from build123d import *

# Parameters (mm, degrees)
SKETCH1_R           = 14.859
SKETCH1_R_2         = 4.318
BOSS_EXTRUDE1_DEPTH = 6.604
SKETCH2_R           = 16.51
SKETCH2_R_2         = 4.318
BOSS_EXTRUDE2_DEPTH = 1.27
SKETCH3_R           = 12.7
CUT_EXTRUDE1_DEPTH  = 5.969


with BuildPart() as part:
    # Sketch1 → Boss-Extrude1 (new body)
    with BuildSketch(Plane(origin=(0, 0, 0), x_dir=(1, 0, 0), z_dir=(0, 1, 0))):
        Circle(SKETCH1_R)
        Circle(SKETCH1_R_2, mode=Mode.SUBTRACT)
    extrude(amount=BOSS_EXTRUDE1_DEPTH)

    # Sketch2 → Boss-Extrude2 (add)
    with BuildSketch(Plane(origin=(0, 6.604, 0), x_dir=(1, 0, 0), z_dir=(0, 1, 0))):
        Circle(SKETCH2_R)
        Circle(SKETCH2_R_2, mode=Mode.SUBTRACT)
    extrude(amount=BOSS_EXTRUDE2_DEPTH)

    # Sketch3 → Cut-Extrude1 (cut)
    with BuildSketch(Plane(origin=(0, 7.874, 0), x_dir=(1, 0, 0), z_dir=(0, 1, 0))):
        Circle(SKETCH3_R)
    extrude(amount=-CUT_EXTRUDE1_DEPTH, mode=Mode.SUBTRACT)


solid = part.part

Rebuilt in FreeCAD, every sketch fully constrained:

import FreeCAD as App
import Part
import Sketcher

V = App.Vector
Q = App.Units.Quantity

doc = App.newDocument("Part")
params = doc.addObject("Spreadsheet::Sheet", "Params")
for row, (alias, value) in enumerate([
    ("sketch1_diameter", "1.17 in"),
    ("sketch1_diameter2", "0.34 in"),
    ("pad1_length", "0.26 in"),
    ("sketch2_diameter", "1.3 in"),
    ("sketch2_diameter2", "0.34 in"),
    ("pad2_length", "0.05 in"),
    ("sketch3_diameter", "1 in"),
    ("pocket1_length", "0.235 in"),
], start=1):
    params.set(f"A{row}", alias)
    params.set(f"B{row}", "=" + value)
    params.setAlias(f"B{row}", alias)

body = doc.addObject("PartDesign::Body", "Body")

# Sketch on XZ plane
sketch1 = doc.addObject("Sketcher::SketchObject", "Sketch")
body.addObject(sketch1)
sketch1.AttachmentSupport = (doc.XZ_Plane, [""])
sketch1.MapMode = "FlatFace"
sketch1.addGeometry([
    Part.Circle(V(0, 0, 0), V(0, 0, 1), 14.859),
    Part.Circle(V(0, 0, 0), V(0, 0, 1), 4.318),
], False)
sketch1.addConstraint([
    Sketcher.Constraint("Coincident", 0, 3, -1, 1),
    Sketcher.Constraint("Coincident", 1, 3, -1, 1),
    Sketcher.Constraint("Diameter", 0, Q("1.17 in")),
    Sketcher.Constraint("Diameter", 1, Q("0.34 in")),
])
sketch1.setExpression("Constraints[2]", "Params.sketch1_diameter")
sketch1.setExpression("Constraints[3]", "Params.sketch1_diameter2")
pad1 = doc.addObject("PartDesign::Pad", "Pad")
body.addObject(pad1)
pad1.Profile = sketch1
pad1.setExpression("Length", "Params.pad1_length")
pad1.Reversed = True

# Sketch on XZ plane
sketch2 = doc.addObject("Sketcher::SketchObject", "Sketch001")
body.addObject(sketch2)
sketch2.AttachmentSupport = (doc.XZ_Plane, [""])
sketch2.MapMode = "FlatFace"
sketch2.AttachmentOffset = App.Placement(V(0, 0, -0.26 * 25.4), App.Rotation())
sketch2.addGeometry([
    Part.Circle(V(0, 0, 0), V(0, 0, 1), 16.51),
    Part.Circle(V(0, 0, 0), V(0, 0, 1), 4.318),
], False)
sketch2.addConstraint([
    Sketcher.Constraint("Coincident", 0, 3, -1, 1),
    Sketcher.Constraint("Coincident", 1, 3, -1, 1),
    Sketcher.Constraint("Diameter", 0, Q("1.3 in")),
    Sketcher.Constraint("Diameter", 1, Q("0.34 in")),
])
sketch2.setExpression("Constraints[2]", "Params.sketch2_diameter")
sketch2.setExpression("Constraints[3]", "Params.sketch2_diameter2")
pad2 = doc.addObject("PartDesign::Pad", "Pad001")
body.addObject(pad2)
pad2.Profile = sketch2
pad2.setExpression("Length", "Params.pad2_length")
pad2.Reversed = True

# Sketch on XZ plane
sketch3 = doc.addObject("Sketcher::SketchObject", "Sketch002")
body.addObject(sketch3)
sketch3.AttachmentSupport = (doc.XZ_Plane, [""])
sketch3.MapMode = "FlatFace"
sketch3.AttachmentOffset = App.Placement(V(0, 0, -0.31 * 25.4), App.Rotation())
sketch3.addGeometry(Part.Circle(V(0, 0, 0), V(0, 0, 1), 12.7), False)
sketch3.addConstraint([
    Sketcher.Constraint("Coincident", 0, 3, -1, 1),
    Sketcher.Constraint("Diameter", 0, Q("1 in")),
])
sketch3.setExpression("Constraints[1]", "Params.sketch3_diameter")
pocket1 = doc.addObject("PartDesign::Pocket", "Pocket")
body.addObject(pocket1)
pocket1.Profile = sketch3
pocket1.setExpression("Length", "Params.pocket1_length")
pocket1.Reversed = True

doc.recompute()
